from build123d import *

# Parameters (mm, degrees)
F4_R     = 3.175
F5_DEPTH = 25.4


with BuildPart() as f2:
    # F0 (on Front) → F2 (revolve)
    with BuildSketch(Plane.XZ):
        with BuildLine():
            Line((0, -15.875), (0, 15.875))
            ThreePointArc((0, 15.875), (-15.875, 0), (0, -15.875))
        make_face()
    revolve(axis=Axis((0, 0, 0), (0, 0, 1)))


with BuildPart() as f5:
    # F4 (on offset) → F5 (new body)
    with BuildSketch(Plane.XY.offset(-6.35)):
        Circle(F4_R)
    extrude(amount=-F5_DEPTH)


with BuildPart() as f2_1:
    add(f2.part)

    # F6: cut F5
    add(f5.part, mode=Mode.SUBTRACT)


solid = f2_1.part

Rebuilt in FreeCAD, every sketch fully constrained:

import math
import FreeCAD as App
import Part
import Sketcher

V = App.Vector
Q = App.Units.Quantity

doc = App.newDocument("Part")
body = doc.addObject("PartDesign::Body", "Body")

# Sketch on XZ plane
sketch1 = body.newObject("Sketcher::SketchObject", "Sketch")
sketch1.AttachmentSupport = (doc.getObject("XZ_Plane"), [""])
sketch1.MapMode = "FlatFace"
sketch1.addGeometry([
    Part.LineSegment(V(0, -16, 0), V(0, 16, 0)),
    Part.ArcOfCircle(Part.Circle(V(0, 0, 0), V(0, 0, 1), 16), math.radians(90), math.radians(270)),
], False)
sketch1.addConstraint([
    Sketcher.Constraint("Coincident", 0, 1, 1, 2),
    Sketcher.Constraint("Coincident", 1, 1, 0, 2),
    Sketcher.Constraint("Vertical", 0),
    Sketcher.Constraint("Coincident", 1, 3, -1, 1),
    Sketcher.Constraint("PointOnObject", 0, 1, -2),
    Sketcher.Constraint("Radius", 1, Q("0.625 in")),
])
revolution = body.newObject("PartDesign::Revolution", "Revolution")
revolution.Profile = sketch1
revolution.ReferenceAxis = (sketch1, ["V_Axis"])
revolution.Angle = 360
body2 = doc.addObject("PartDesign::Body", "Body001")

# Sketch on XY plane
sketch2 = body2.newObject("Sketcher::SketchObject", "Sketch001")
sketch2.AttachmentSupport = (doc.getObject("XY_Plane001"), [""])
sketch2.MapMode = "FlatFace"
sketch2.AttachmentOffset = App.Placement(V(0, 0, -0.25 * 25.4), App.Rotation())
sketch2.addGeometry(Part.Circle(V(0, 0, 0), V(0, 0, 1), 3.2), False)
sketch2.addConstraint([
    Sketcher.Constraint("Coincident", 0, 3, -1, 1),
    Sketcher.Constraint("Diameter", 0, Q("0.25 in")),
])
pad1 = body2.newObject("PartDesign::Pad", "Pad")
pad1.Profile = sketch2
pad1.Length = Q("1 in")
pad1.Reversed = True
doc.recompute()

boolean = body.newObject("PartDesign::Boolean", "Boolean")
boolean.Type = "Cut"
boolean.addObjects([body2])

doc.recompute()
